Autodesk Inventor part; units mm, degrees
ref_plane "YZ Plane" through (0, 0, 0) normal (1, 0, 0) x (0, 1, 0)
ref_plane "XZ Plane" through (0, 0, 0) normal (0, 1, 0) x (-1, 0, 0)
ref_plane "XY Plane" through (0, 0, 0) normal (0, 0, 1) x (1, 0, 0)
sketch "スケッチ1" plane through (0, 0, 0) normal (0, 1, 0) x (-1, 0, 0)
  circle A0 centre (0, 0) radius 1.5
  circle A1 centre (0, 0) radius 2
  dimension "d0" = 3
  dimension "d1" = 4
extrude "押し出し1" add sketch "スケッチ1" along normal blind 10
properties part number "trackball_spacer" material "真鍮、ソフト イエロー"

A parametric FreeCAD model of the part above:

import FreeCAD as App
import Part
import Sketcher
from FreeCAD import Vector

doc = App.newDocument("Part")
body = doc.addObject("PartDesign::Body", "Body")

# Sketch on XZ plane
sketch1 = body.newObject("Sketcher::SketchObject", "Sketch")
sketch1.AttachmentSupport = (doc.getObject("XZ_Plane"), [""])
sketch1.MapMode = "FlatFace"
sketch1.addGeometry(Part.Circle(Vector(0, 0, 0), Vector(0, 0, 1), 2), False)
sketch1.addGeometry(Part.Circle(Vector(0, 0, 0), Vector(0, 0, 1), 1.5), False)
sketch1.addConstraint(Sketcher.Constraint("Coincident", 0, 3, -1, 1))
sketch1.addConstraint(Sketcher.Constraint("Coincident", 1, 3, -1, 1))
sketch1.addConstraint(Sketcher.Constraint("Diameter", 0, 4.0))
sketch1.addConstraint(Sketcher.Constraint("Diameter", 1, 3.0))
pad1 = body.newObject("PartDesign::Pad", "Pad")
pad1.Profile = sketch1
pad1.Length = 10
pad1.Reversed = True

doc.recompute()
